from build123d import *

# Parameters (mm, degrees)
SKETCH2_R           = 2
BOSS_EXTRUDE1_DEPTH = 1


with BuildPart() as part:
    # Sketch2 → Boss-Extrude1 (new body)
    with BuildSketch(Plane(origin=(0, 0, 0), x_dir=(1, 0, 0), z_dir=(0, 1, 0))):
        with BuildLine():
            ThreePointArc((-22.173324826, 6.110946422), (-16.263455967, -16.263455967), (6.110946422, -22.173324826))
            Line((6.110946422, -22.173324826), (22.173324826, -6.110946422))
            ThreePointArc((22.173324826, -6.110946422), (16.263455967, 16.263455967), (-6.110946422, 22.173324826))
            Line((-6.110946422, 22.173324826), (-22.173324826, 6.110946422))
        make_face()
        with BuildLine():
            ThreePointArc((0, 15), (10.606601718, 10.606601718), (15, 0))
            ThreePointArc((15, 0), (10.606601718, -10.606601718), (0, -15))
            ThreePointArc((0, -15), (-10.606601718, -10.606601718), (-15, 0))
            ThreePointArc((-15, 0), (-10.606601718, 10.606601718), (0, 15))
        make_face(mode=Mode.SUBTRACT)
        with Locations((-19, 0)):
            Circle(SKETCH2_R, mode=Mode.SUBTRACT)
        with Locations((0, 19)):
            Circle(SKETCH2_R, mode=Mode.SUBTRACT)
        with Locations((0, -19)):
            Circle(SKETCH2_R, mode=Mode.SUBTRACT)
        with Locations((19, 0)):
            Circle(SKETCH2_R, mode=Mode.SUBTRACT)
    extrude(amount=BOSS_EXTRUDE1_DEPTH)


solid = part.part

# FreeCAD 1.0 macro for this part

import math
import FreeCAD as App
import Part
import Sketcher
from FreeCAD import Vector
Q = App.Units.Quantity

doc = App.newDocument("Part")
body = doc.addObject("PartDesign::Body", "Body")

sketch1 = body.newObject("Sketcher::SketchObject", "Sketch")
sketch1.AttachmentSupport = (doc.getObject("XZ_Plane"), [""])
sketch1.MapMode = "FlatFace"
sketch1.addGeometry(Part.ArcOfCircle(Part.Circle(Vector(0, 0, 0), Vector(0, 0, 1), 23), math.radians(75), math.radians(195)), False)
sketch1.addGeometry(Part.LineSegment(Vector(6.1, 22.2, 0), Vector(22.2, 6.1, 0)), False)
sketch1.addGeometry(Part.ArcOfCircle(Part.Circle(Vector(0, 0, 0), Vector(0, 0, 1), 23), math.radians(-105), math.radians(15)), False)
sketch1.addGeometry(Part.LineSegment(Vector(-6.1, -22.2, 0), Vector(-22.2, -6.1, 0)), False)
sketch1.addGeometry(Part.Circle(Vector(0, 19, 0), Vector(0, 0, 1), 2), False)
sketch1.addGeometry(Part.Circle(Vector(-19, 0, 0), Vector(0, 0, 1), 2), False)
sketch1.addGeometry(Part.ArcOfCircle(Part.Circle(Vector(0, 0, 0), Vector(0, 0, 1), 15), math.radians(180), math.radians(270)), False)
sketch1.addGeometry(Part.ArcOfCircle(Part.Circle(Vector(0, 0, 0), Vector(0, 0, 1), 15), math.radians(-90), math.radians(0)), False)
sketch1.addGeometry(Part.ArcOfCircle(Part.Circle(Vector(0, 0, 0), Vector(0, 0, 1), 15), math.radians(0), math.radians(90)), False)
sketch1.addGeometry(Part.ArcOfCircle(Part.Circle(Vector(0, 0, 0), Vector(0, 0, 1), 15), math.radians(90), math.radians(180)), False)
sketch1.addGeometry(Part.Circle(Vector(19, 0, 0), Vector(0, 0, 1), 2), False)
sketch1.addGeometry(Part.Circle(Vector(0, -19, 0), Vector(0, 0, 1), 2), False)
sketch1.addConstraint(Sketcher.Constraint("Coincident", 0, 1, 1, 1))
sketch1.addConstraint(Sketcher.Constraint("Coincident", 1, 2, 2, 2))
sketch1.addConstraint(Sketcher.Constraint("Coincident", 2, 1, 3, 1))
sketch1.addConstraint(Sketcher.Constraint("Coincident", 3, 2, 0, 2))
sketch1.addConstraint(Sketcher.Constraint("Tangent", 6, 2, 7, 1))
sketch1.addConstraint(Sketcher.Constraint("Tangent", 7, 2, 8, 1))
sketch1.addConstraint(Sketcher.Constraint("Tangent", 8, 2, 9, 1))
sketch1.addConstraint(Sketcher.Constraint("Tangent", 9, 2, 6, 1))
sketch1.addConstraint(Sketcher.Constraint("Coincident", 0, 3, -1, 1))
sketch1.addConstraint(Sketcher.Constraint("Coincident", 2, 3, -1, 1))
sketch1.addConstraint(Sketcher.Constraint("Coincident", 6, 3, -1, 1))
sketch1.addConstraint(Sketcher.Constraint("Equal", 0, 2))
sketch1.addConstraint(Sketcher.Constraint("Equal", 4, 5))
sketch1.addConstraint(Sketcher.Constraint("Equal", 6, 7))
sketch1.addConstraint(Sketcher.Constraint("Equal", 5, 10))
sketch1.addConstraint(Sketcher.Constraint("Equal", 10, 11))
sketch1.addConstraint(Sketcher.Constraint("Symmetric", 5, 3, 10, 3, -1, 1))
sketch1.addConstraint(Sketcher.Constraint("Symmetric", 4, 3, 11, 3, -1, 1))
sketch1.addConstraint(Sketcher.Constraint("PointOnObject", 4, 3, -2))
sketch1.addConstraint(Sketcher.Constraint("PointOnObject", 5, 3, -1))
sketch1.addConstraint(Sketcher.Constraint("PointOnObject", 6, 2, -2))
sketch1.addConstraint(Sketcher.Constraint("PointOnObject", 7, 2, -1))
sketch1.addConstraint(Sketcher.Constraint("PointOnObject", 8, 2, -2))
sketch1.addConstraint(Sketcher.Constraint("PointOnObject", 9, 2, -1))
sketch1.addConstraint(Sketcher.Constraint("Parallel", 1, 3))
sketch1.addConstraint(Sketcher.Constraint("Equal", 1, 3))
sketch1.addConstraint(Sketcher.Constraint("Diameter", 4, 4.0))
sketch1.addConstraint(Sketcher.Constraint("Radius", 0, 23.0))
sketch1.addConstraint(Sketcher.Constraint("Radius", 6, 15.0))
sketch1.addConstraint(Sketcher.Constraint("Angle", 1, Q("-45 deg")))
sketch1.addConstraint(Sketcher.Constraint("DistanceY", -1, 1, 4, 3, 19.0))
sketch1.addConstraint(Sketcher.Constraint("DistanceX", 5, 3, -1, 1, 19.0))
sketch1.addConstraint(Sketcher.Constraint("DistanceX", 0, 1, 1, 2, 16.062378))
pad1 = body.newObject("PartDesign::Pad", "Pad")
pad1.Profile = sketch1
pad1.Length = 1
pad1.Reversed = True

doc.recompute()
